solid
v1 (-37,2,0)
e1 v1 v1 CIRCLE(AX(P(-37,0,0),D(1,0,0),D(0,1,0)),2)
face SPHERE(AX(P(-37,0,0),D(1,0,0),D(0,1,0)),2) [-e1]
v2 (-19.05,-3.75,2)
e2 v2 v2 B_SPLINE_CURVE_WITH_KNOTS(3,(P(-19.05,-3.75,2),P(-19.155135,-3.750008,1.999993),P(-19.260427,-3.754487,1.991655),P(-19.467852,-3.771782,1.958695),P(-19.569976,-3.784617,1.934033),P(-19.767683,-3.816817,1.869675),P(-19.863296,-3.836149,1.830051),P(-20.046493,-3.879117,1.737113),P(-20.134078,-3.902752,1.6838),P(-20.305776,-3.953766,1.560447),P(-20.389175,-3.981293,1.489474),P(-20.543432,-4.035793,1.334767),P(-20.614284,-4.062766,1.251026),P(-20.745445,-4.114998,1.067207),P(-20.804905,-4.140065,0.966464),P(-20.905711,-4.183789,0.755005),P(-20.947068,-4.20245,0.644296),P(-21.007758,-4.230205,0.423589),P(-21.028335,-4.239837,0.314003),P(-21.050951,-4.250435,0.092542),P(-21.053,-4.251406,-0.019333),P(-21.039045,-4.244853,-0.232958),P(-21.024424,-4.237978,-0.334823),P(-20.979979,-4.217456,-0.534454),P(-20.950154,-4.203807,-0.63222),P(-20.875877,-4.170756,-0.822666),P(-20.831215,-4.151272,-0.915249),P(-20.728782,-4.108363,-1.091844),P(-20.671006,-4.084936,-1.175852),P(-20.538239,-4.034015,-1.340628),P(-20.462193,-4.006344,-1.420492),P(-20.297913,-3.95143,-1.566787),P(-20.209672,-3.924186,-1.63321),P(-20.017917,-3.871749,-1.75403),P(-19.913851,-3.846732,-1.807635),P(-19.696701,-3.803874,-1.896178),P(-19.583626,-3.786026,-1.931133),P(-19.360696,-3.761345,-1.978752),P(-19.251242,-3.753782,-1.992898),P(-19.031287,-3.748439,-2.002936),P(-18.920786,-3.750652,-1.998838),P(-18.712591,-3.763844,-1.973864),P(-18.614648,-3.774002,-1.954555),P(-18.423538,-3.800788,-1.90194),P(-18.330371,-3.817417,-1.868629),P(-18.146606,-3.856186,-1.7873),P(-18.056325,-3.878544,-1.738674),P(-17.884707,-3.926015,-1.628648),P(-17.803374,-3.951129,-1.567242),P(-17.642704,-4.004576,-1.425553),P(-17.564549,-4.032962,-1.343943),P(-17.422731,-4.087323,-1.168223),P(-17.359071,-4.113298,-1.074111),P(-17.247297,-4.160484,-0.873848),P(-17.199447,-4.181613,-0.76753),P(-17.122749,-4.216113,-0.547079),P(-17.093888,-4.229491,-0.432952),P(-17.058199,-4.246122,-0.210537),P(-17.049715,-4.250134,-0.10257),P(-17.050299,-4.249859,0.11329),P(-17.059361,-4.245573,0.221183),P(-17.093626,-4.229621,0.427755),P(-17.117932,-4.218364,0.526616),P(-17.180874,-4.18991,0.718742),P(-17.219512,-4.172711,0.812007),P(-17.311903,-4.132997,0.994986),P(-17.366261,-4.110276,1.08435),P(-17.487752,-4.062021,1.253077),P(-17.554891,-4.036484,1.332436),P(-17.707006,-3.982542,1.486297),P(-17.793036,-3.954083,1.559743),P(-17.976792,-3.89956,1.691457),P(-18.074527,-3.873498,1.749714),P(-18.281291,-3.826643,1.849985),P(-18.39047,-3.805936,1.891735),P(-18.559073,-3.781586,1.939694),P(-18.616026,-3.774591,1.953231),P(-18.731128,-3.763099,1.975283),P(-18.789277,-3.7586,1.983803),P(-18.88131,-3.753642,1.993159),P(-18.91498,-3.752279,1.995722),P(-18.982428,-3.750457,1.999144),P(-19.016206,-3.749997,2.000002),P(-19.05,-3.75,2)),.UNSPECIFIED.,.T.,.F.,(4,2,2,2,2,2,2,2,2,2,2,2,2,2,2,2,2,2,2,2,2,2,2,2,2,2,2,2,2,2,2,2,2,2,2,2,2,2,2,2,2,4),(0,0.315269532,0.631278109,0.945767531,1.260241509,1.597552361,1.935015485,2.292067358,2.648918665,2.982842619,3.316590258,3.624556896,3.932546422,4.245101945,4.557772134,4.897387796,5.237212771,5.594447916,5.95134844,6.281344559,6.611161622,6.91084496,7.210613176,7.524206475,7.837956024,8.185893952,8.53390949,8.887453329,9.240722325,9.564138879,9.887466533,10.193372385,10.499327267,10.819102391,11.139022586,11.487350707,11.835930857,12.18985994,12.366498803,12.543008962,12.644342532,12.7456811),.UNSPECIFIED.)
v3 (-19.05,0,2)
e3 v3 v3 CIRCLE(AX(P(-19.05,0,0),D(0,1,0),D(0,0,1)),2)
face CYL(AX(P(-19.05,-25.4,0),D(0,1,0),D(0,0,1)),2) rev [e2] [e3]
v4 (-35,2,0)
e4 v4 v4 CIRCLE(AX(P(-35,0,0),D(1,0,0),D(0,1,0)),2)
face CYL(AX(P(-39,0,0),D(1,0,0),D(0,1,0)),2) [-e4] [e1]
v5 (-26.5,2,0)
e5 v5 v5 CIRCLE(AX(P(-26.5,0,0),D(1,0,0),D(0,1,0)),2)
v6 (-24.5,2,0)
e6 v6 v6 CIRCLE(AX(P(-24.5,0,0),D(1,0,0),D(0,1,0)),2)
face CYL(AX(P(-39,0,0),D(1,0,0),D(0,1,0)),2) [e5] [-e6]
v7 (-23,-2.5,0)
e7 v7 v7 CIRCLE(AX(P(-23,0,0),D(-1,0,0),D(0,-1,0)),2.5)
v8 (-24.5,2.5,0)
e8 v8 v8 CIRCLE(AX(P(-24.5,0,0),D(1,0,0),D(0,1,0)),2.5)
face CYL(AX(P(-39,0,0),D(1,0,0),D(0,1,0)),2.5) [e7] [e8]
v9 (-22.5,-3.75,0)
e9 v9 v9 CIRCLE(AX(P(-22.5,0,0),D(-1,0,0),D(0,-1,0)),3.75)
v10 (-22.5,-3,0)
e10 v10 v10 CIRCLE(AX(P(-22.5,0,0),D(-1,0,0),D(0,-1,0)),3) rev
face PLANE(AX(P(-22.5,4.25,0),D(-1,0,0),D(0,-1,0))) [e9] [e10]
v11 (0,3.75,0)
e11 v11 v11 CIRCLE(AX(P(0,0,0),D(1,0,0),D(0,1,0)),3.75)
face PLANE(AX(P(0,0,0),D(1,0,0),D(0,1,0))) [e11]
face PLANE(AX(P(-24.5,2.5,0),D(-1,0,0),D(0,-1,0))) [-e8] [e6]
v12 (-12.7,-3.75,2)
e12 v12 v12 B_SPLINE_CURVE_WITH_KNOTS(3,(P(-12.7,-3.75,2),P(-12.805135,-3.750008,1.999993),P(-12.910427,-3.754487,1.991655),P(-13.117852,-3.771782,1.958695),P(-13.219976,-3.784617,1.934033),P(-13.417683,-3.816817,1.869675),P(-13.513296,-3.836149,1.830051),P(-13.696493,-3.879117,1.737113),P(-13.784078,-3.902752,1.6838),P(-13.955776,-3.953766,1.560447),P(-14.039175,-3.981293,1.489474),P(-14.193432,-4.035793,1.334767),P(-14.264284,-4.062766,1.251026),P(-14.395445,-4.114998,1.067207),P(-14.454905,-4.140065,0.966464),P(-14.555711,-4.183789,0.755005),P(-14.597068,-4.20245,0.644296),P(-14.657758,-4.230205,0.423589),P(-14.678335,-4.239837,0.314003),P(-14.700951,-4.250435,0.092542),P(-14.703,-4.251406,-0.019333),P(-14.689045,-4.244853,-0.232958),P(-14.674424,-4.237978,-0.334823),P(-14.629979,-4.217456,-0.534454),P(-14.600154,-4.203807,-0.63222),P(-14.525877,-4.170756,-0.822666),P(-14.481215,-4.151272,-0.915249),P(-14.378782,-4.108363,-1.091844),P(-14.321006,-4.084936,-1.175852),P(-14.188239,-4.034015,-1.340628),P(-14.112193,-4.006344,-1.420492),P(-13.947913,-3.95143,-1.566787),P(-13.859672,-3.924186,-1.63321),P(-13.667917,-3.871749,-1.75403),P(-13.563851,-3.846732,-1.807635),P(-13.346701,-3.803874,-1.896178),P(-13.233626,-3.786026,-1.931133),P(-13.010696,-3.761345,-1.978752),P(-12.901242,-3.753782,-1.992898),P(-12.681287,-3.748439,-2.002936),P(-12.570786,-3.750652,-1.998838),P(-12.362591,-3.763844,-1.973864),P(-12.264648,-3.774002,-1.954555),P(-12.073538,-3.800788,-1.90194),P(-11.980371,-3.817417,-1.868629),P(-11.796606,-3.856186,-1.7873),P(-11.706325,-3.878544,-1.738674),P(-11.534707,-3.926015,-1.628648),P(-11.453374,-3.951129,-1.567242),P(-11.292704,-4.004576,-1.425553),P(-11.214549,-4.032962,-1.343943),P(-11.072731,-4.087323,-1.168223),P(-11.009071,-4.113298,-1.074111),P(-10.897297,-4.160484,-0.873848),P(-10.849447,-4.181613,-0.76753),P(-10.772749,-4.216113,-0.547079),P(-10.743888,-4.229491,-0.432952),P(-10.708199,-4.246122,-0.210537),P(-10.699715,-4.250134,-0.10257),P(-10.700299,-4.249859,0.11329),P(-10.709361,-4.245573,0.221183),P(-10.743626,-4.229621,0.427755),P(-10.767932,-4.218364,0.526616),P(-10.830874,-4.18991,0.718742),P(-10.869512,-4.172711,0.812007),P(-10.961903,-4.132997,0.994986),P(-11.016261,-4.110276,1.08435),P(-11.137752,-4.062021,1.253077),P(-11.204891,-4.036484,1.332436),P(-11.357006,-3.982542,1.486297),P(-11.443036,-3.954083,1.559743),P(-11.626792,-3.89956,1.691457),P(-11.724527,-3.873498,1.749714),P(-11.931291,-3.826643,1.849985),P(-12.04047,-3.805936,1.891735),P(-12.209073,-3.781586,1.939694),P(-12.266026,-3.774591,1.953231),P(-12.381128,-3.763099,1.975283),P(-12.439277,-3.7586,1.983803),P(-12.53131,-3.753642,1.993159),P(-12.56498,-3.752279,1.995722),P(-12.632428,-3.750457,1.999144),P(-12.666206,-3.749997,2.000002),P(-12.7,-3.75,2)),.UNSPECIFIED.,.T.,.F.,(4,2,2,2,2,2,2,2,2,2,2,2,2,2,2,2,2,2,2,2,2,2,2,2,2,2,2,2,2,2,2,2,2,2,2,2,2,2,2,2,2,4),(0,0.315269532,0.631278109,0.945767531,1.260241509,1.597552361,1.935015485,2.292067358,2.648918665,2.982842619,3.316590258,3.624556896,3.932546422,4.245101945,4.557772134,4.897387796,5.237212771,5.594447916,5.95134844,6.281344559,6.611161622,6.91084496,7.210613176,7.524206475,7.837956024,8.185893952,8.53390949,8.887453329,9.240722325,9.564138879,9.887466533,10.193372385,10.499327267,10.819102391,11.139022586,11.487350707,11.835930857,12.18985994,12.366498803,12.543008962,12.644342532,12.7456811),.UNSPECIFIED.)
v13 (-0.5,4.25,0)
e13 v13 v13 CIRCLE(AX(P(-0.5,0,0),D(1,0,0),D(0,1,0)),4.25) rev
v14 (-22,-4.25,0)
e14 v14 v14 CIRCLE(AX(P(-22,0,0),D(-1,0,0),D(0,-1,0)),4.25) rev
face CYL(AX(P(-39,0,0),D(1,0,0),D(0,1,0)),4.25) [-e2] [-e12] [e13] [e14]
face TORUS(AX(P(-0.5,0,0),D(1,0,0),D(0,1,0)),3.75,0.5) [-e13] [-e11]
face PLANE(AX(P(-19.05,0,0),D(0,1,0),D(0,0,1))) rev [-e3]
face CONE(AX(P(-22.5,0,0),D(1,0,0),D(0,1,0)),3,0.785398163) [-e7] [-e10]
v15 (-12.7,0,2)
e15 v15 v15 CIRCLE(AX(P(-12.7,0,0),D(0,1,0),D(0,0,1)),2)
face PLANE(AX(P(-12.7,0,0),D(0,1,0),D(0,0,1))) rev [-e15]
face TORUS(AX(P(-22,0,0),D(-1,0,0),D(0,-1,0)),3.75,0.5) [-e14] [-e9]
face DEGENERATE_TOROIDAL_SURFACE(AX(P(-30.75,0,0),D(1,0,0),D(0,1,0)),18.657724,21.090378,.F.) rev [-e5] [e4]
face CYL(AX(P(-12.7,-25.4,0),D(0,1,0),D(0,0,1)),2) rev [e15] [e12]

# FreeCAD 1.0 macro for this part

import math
import FreeCAD as App
import Part
import Sketcher
from FreeCAD import Vector
Q = App.Units.Quantity


def edges_at(feature, points):
    """Names of the edges that pass closest to the given points."""
    edges = feature.Shape.Edges
    near = lambda p: min(range(len(edges)), key=lambda i: edges[i].distToShape(Part.Vertex(*p))[0])
    return sorted({f"Edge{near(p) + 1}" for p in points})

doc = App.newDocument("Part")
body = doc.addObject("PartDesign::Body", "Body")

# Sketch on XY plane
sketch1 = body.newObject("Sketcher::SketchObject", "Sketch")
sketch1.AttachmentSupport = (doc.getObject("XY_Plane"), [""])
sketch1.MapMode = "FlatFace"
sketch1.addGeometry([
    Part.LineSegment(Vector(-39, 0, 0), Vector(0, 0, 0)),  # 0
    Part.LineSegment(Vector(0, 0, 0), Vector(0, 4.25, 0)),  # 1
    Part.LineSegment(Vector(0, 4.25, 0), Vector(-22.5, 4.25, 0)),  # 2
    Part.LineSegment(Vector(-22.5, 4.25, 0), Vector(-22.5, 2.5, 0)),  # 3
    Part.LineSegment(Vector(-22.5, 2.5, 0), Vector(-24.5, 2.5, 0)),  # 4
    Part.LineSegment(Vector(-24.5, 2.5, 0), Vector(-24.5, 2, 0)),  # 5
    Part.LineSegment(Vector(-24.5, 2, 0), Vector(-26.5, 2, 0)),  # 6
    Part.ArcOfCircle(Part.Circle(Vector(-30.75, -18.657724, 0), Vector(0, 0, 1), 21.090378), math.radians(78.37451), math.radians(101.62549)),  # 7
    Part.LineSegment(Vector(-35, 2, 0), Vector(-37, 2, 0)),  # 8
    Part.ArcOfCircle(Part.Circle(Vector(-37, 0, 0), Vector(0, 0, 1), 2), math.radians(90), math.radians(180)),  # 9
], False)
sketch1.addConstraint([
    Sketcher.Constraint("Coincident", 0, 2, 1, 1),
    Sketcher.Constraint("Coincident", 1, 2, 2, 1),
    Sketcher.Constraint("Coincident", 2, 2, 3, 1),
    Sketcher.Constraint("Coincident", 3, 2, 4, 1),
    Sketcher.Constraint("Coincident", 4, 2, 5, 1),
    Sketcher.Constraint("Coincident", 5, 2, 6, 1),
    Sketcher.Constraint("Coincident", 6, 2, 7, 1),
    Sketcher.Constraint("Coincident", 7, 2, 8, 1),
    Sketcher.Constraint("Tangent", 8, 2, 9, 1),
    Sketcher.Constraint("Coincident", 9, 2, 0, 1),
    Sketcher.Constraint("Horizontal", 0),
    Sketcher.Constraint("Vertical", 1),
    Sketcher.Constraint("Horizontal", 2),
    Sketcher.Constraint("Vertical", 3),
    Sketcher.Constraint("Horizontal", 4),
    Sketcher.Constraint("Vertical", 5),
    Sketcher.Constraint("Horizontal", 6),
    Sketcher.Constraint("Horizontal", 8),
    Sketcher.Constraint("Coincident", 0, 2, -1, 1),
    Sketcher.Constraint("PointOnObject", 9, 3, -1),
    Sketcher.Constraint("Horizontal", 6, 2, 7, 2),
    Sketcher.Constraint("Equal", 4, 6),
    Sketcher.Constraint("Equal", 6, 8),
    Sketcher.Constraint("Radius", 9, Q("2 mm")),
    Sketcher.Constraint("DistanceX", 0, 1, 0, 2, Q("39 mm")),
    Sketcher.Constraint("DistanceX", 4, 2, 4, 1, Q("2 mm")),
    Sketcher.Constraint("DistanceX", 2, 2, 2, 1, Q("22.5 mm")),
    Sketcher.Constraint("DistanceY", 5, 2, 5, 1, Q("0.5 mm")),
    Sketcher.Constraint("DistanceY", 1, 1, 1, 2, Q("4.25 mm")),
    Sketcher.Constraint("Radius", 7, Q("21.090378 mm")),
])
revolution = body.newObject("PartDesign::Revolution", "Revolution")
revolution.Profile = sketch1
revolution.ReferenceAxis = (sketch1, ["H_Axis"])
revolution.Angle = 360
doc.recompute()

chamfer = body.newObject("PartDesign::Chamfer", "Chamfer")
chamfer.Base = (revolution, edges_at(revolution, [(-22.5, -2.5, 0)]))
chamfer.Size = 0.5
doc.recompute()

fillet = body.newObject("PartDesign::Fillet", "Fillet")
fillet.Base = (chamfer, edges_at(chamfer, [(0, -4.25, 0), (-22.5, -4.25, 0)]))
fillet.Radius = 0.5

# Sketch on XZ plane
sketch2 = body.newObject("Sketcher::SketchObject", "Sketch001")
sketch2.AttachmentSupport = (doc.getObject("XZ_Plane"), [""])
sketch2.MapMode = "FlatFace"
sketch2.addGeometry([
    Part.Circle(Vector(-19.05, 0, 0), Vector(0, 0, 1), 2),
    Part.Circle(Vector(-12.7, 0, 0), Vector(0, 0, 1), 2),
], False)
sketch2.addConstraint([
    Sketcher.Constraint("Equal", 0, 1),
    Sketcher.Constraint("PointOnObject", 0, 3, -1),
    Sketcher.Constraint("PointOnObject", 1, 3, -1),
    Sketcher.Constraint("Diameter", 0, Q("4 mm")),
    Sketcher.Constraint("DistanceX", 1, 3, -1, 1, Q("12.7 mm")),
    Sketcher.Constraint("DistanceX", 0, 3, -1, 1, Q("19.05 mm")),
])
pocket1 = body.newObject("PartDesign::Pocket", "Pocket")
pocket1.Profile = sketch2
pocket1.Length = 25.4
pocket1.Reversed = True

doc.recompute()
